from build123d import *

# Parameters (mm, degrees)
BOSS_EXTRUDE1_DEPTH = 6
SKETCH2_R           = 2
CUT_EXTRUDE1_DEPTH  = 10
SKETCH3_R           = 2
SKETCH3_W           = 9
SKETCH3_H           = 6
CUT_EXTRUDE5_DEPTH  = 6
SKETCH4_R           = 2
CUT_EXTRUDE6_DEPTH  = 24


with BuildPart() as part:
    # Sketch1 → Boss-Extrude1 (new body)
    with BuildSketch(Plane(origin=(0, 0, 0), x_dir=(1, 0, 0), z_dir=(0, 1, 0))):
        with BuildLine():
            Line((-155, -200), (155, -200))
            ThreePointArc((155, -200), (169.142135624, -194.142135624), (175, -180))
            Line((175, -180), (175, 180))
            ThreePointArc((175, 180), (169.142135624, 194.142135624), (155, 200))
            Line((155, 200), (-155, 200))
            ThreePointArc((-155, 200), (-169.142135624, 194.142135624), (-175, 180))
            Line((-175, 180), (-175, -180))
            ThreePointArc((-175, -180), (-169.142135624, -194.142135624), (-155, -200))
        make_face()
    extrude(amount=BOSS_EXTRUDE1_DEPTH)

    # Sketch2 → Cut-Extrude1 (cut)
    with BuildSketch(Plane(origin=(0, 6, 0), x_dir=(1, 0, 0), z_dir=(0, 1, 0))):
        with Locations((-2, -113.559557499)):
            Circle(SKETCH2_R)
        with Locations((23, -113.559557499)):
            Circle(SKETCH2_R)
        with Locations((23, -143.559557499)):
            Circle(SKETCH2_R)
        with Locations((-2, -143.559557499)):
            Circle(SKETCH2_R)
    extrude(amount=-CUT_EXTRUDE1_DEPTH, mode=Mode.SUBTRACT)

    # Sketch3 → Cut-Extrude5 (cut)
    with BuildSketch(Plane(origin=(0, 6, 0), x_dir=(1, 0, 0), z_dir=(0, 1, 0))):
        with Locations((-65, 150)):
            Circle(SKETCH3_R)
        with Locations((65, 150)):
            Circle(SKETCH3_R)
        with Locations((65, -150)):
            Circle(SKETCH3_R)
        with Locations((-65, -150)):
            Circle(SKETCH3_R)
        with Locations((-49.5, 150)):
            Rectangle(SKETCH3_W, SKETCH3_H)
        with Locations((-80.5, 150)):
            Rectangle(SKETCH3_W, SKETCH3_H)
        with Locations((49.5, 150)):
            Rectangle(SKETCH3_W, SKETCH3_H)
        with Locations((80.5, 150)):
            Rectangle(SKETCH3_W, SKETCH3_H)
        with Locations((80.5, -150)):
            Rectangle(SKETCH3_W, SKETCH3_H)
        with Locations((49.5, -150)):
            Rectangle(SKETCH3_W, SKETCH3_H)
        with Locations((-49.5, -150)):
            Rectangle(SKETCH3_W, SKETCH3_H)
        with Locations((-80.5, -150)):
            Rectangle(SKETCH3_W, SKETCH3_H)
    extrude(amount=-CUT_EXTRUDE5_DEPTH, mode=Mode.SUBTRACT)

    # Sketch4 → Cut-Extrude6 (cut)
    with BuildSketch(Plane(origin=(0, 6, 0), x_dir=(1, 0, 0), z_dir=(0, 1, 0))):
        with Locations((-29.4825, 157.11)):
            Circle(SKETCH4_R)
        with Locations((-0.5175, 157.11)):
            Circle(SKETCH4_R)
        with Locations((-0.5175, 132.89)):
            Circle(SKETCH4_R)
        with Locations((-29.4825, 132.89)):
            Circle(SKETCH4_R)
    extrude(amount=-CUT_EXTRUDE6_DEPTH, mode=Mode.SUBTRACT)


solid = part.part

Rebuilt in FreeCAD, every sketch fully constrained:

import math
import FreeCAD as App
import Part
import Sketcher
from FreeCAD import Vector


def add_polygon(sketch, points):
    """Adds a closed chain of lines whose ends are joined by coincident constraints."""
    first, n = sketch.GeometryCount, len(points)
    for a, b in zip(points, points[1:] + points[:1]):
        sketch.addGeometry(Part.LineSegment(App.Vector(*a, 0), App.Vector(*b, 0)), False)
    for i in range(n):
        sketch.addConstraint(Sketcher.Constraint("Coincident", first + i, 2, first + (i + 1) % n, 1))

doc = App.newDocument("Part")
body = doc.addObject("PartDesign::Body", "Body")

# Sketch on XZ plane
sketch1 = body.newObject("Sketcher::SketchObject", "Sketch")
sketch1.AttachmentSupport = (doc.getObject("XZ_Plane"), [""])
sketch1.MapMode = "FlatFace"
sketch1.addGeometry([
    Part.LineSegment(Vector(-155, 200, 0), Vector(155, 200, 0)),  # 0
    Part.ArcOfCircle(Part.Circle(Vector(155, 180, 0), Vector(0, 0, 1), 20), math.radians(0), math.radians(90)),  # 1
    Part.LineSegment(Vector(175, 180, 0), Vector(175, -180, 0)),  # 2
    Part.ArcOfCircle(Part.Circle(Vector(155, -180, 0), Vector(0, 0, 1), 20), math.radians(-90), math.radians(0)),  # 3
    Part.LineSegment(Vector(155, -200, 0), Vector(-155, -200, 0)),  # 4
    Part.ArcOfCircle(Part.Circle(Vector(-155, -180, 0), Vector(0, 0, 1), 20), math.radians(180), math.radians(270)),  # 5
    Part.LineSegment(Vector(-175, -180, 0), Vector(-175, 180, 0)),  # 6
    Part.ArcOfCircle(Part.Circle(Vector(-155, 180, 0), Vector(0, 0, 1), 20), math.radians(90), math.radians(180)),  # 7
], False)
sketch1.addConstraint([
    Sketcher.Constraint("Tangent", 0, 2, 1, 2),
    Sketcher.Constraint("Tangent", 1, 1, 2, 1),
    Sketcher.Constraint("Tangent", 2, 2, 3, 2),
    Sketcher.Constraint("Tangent", 3, 1, 4, 1),
    Sketcher.Constraint("Tangent", 4, 2, 5, 2),
    Sketcher.Constraint("Tangent", 5, 1, 6, 1),
    Sketcher.Constraint("Tangent", 6, 2, 7, 2),
    Sketcher.Constraint("Tangent", 7, 1, 0, 1),
    Sketcher.Constraint("Horizontal", 0),
    Sketcher.Constraint("Vertical", 2),
    Sketcher.Constraint("Horizontal", 4),
    Sketcher.Constraint("Vertical", 6),
    Sketcher.Constraint("Equal", 1, 3),
    Sketcher.Constraint("Equal", 3, 5),
    Sketcher.Constraint("Equal", 5, 7),
    Sketcher.Constraint("Symmetric", 1, 3, 5, 3, -1, 1),
    Sketcher.Constraint("Radius", 1, 20.0),
    Sketcher.Constraint("DistanceX", 0, 1, 0, 2, 310.0),
    Sketcher.Constraint("DistanceY", 2, 2, 2, 1, 360.0),
])
pad1 = body.newObject("PartDesign::Pad", "Pad")
pad1.Profile = sketch1
pad1.Length = 6
pad1.Reversed = True

# Sketch on XZ plane
sketch2 = body.newObject("Sketcher::SketchObject", "Sketch001")
sketch2.AttachmentSupport = (doc.getObject("XZ_Plane"), [""])
sketch2.MapMode = "FlatFace"
sketch2.AttachmentOffset = App.Placement(Vector(0, 0, -6), App.Rotation())
sketch2.addGeometry([
    Part.Circle(Vector(-2, 113.6, 0), Vector(0, 0, 1), 2),
    Part.Circle(Vector(23, 113.6, 0), Vector(0, 0, 1), 2),
    Part.Circle(Vector(23, 143.6, 0), Vector(0, 0, 1), 2),
    Part.Circle(Vector(-2, 143.6, 0), Vector(0, 0, 1), 2),
], False)
sketch2.addConstraint([
    Sketcher.Constraint("Equal", 0, 1),
    Sketcher.Constraint("Equal", 1, 2),
    Sketcher.Constraint("Equal", 2, 3),
    Sketcher.Constraint("Horizontal", 0, 3, 1, 3),
    Sketcher.Constraint("Horizontal", 2, 3, 3, 3),
    Sketcher.Constraint("Vertical", 1, 3, 2, 3),
    Sketcher.Constraint("Vertical", 0, 3, 3, 3),
    Sketcher.Constraint("Diameter", 0, 4.0),
    Sketcher.Constraint("DistanceX", 0, 3, -1, 1, 2.0),
    Sketcher.Constraint("DistanceX", -1, 1, 1, 3, 23.0),
    Sketcher.Constraint("DistanceY", 1, 3, 2, 3, 30.0),
    Sketcher.Constraint("DistanceY", -1, 1, 0, 3, 113.559557),
])
pocket1 = body.newObject("PartDesign::Pocket", "Pocket")
pocket1.Profile = sketch2
pocket1.Length = 10
pocket1.Reversed = True

# Sketch on XZ plane
sketch3 = body.newObject("Sketcher::SketchObject", "Sketch002")
sketch3.AttachmentSupport = (doc.getObject("XZ_Plane"), [""])
sketch3.MapMode = "FlatFace"
sketch3.AttachmentOffset = App.Placement(Vector(0, 0, -6), App.Rotation())
sketch3.addGeometry(Part.Circle(Vector(-65, -150, 0), Vector(0, 0, 1), 2), False)  # 0
sketch3.addGeometry(Part.Circle(Vector(65, -150, 0), Vector(0, 0, 1), 2), False)  # 1
sketch3.addGeometry(Part.Circle(Vector(65, 150, 0), Vector(0, 0, 1), 2), False)  # 2
sketch3.addGeometry(Part.Circle(Vector(-65, 150, 0), Vector(0, 0, 1), 2), False)  # 3
add_polygon(sketch3, [(-54, -153), (-54, -147), (-45, -147), (-45, -153)])  # lines 4-7
add_polygon(sketch3, [(-85, -153), (-85, -147), (-76, -147), (-76, -153)])  # lines 8-11
add_polygon(sketch3, [(45, -153), (45, -147), (54, -147), (54, -153)])  # lines 12-15
add_polygon(sketch3, [(76, -153), (76, -147), (85, -147), (85, -153)])  # lines 16-19
add_polygon(sketch3, [(76, 147), (76, 153), (85, 153), (85, 147)])  # lines 20-23
add_polygon(sketch3, [(45, 147), (45, 153), (54, 153), (54, 147)])  # lines 24-27
add_polygon(sketch3, [(-54, 147), (-54, 153), (-45, 153), (-45, 147)])  # lines 28-31
add_polygon(sketch3, [(-85, 147), (-85, 153), (-76, 153), (-76, 147)])  # lines 32-35
sketch3.addConstraint([
    Sketcher.Constraint("Vertical", 4),
    Sketcher.Constraint("Horizontal", 5),
    Sketcher.Constraint("Vertical", 6),
    Sketcher.Constraint("Horizontal", 7),
    Sketcher.Constraint("Vertical", 8),
    Sketcher.Constraint("Horizontal", 9),
    Sketcher.Constraint("Vertical", 10),
    Sketcher.Constraint("Horizontal", 11),
    Sketcher.Constraint("Vertical", 12),
    Sketcher.Constraint("Horizontal", 13),
    Sketcher.Constraint("Vertical", 14),
    Sketcher.Constraint("Horizontal", 15),
    Sketcher.Constraint("Vertical", 16),
    Sketcher.Constraint("Horizontal", 17),
    Sketcher.Constraint("Vertical", 18),
    Sketcher.Constraint("Horizontal", 19),
    Sketcher.Constraint("Vertical", 20),
    Sketcher.Constraint("Horizontal", 21),
    Sketcher.Constraint("Vertical", 22),
    Sketcher.Constraint("Horizontal", 23),
    Sketcher.Constraint("Vertical", 24),
    Sketcher.Constraint("Horizontal", 25),
    Sketcher.Constraint("Vertical", 26),
    Sketcher.Constraint("Horizontal", 27),
    Sketcher.Constraint("Vertical", 28),
    Sketcher.Constraint("Horizontal", 29),
    Sketcher.Constraint("Vertical", 30),
    Sketcher.Constraint("Horizontal", 31),
    Sketcher.Constraint("Vertical", 32),
    Sketcher.Constraint("Horizontal", 33),
    Sketcher.Constraint("Vertical", 34),
    Sketcher.Constraint("Horizontal", 35),
    Sketcher.Constraint("Equal", 0, 1),
    Sketcher.Constraint("Equal", 1, 2),
    Sketcher.Constraint("Equal", 2, 3),
    Sketcher.Constraint("Symmetric", 0, 3, 2, 3, -1, 1),
    Sketcher.Constraint("Symmetric", 1, 3, 3, 3, -1, 1),
    Sketcher.Constraint("Symmetric", 10, 2, 20, 2, -1, 1),
    Sketcher.Constraint("Symmetric", 8, 2, 22, 2, -1, 1),
    Sketcher.Constraint("Symmetric", 6, 2, 24, 2, -1, 1),
    Sketcher.Constraint("Symmetric", 4, 2, 26, 2, -1, 1),
    Sketcher.Constraint("Symmetric", 14, 2, 28, 2, -1, 1),
    Sketcher.Constraint("Symmetric", 12, 2, 30, 2, -1, 1),
    Sketcher.Constraint("Symmetric", 18, 2, 32, 2, -1, 1),
    Sketcher.Constraint("Symmetric", 16, 2, 34, 2, -1, 1),
    Sketcher.Constraint("Symmetric", 0, 3, 1, 3, -2),
    Sketcher.Constraint("Symmetric", 5, 2, 12, 2, -2),
    Sketcher.Constraint("Symmetric", 7, 2, 14, 2, -2),
    Sketcher.Constraint("Symmetric", 9, 2, 16, 2, -2),
    Sketcher.Constraint("Symmetric", 11, 2, 18, 2, -2),
    Sketcher.Constraint("Horizontal", 5, 2, 8, 2),
    Sketcher.Constraint("Horizontal", 7, 2, 10, 2),
    Sketcher.Constraint("Equal", 7, 9),
    Sketcher.Constraint("Diameter", 0, 4.0),
    Sketcher.Constraint("DistanceX", 5, 1, 5, 2, 9.0),
    Sketcher.Constraint("DistanceY", 4, 1, 4, 2, 6.0),
    Sketcher.Constraint("DistanceX", 0, 3, -1, 1, 65.0),
    Sketcher.Constraint("DistanceY", 0, 3, -1, 1, 150.0),
    Sketcher.Constraint("DistanceX", 4, 2, -1, 1, 54.0),
    Sketcher.Constraint("DistanceY", 4, 2, -1, 1, 147.0),
    Sketcher.Constraint("DistanceX", 8, 2, -1, 1, 85.0),
])
pocket2 = body.newObject("PartDesign::Pocket", "Pocket001")
pocket2.Profile = sketch3
pocket2.Length = 6
pocket2.Reversed = True

# Sketch on XZ plane
sketch4 = body.newObject("Sketcher::SketchObject", "Sketch003")
sketch4.AttachmentSupport = (doc.getObject("XZ_Plane"), [""])
sketch4.MapMode = "FlatFace"
sketch4.AttachmentOffset = App.Placement(Vector(0, 0, -6), App.Rotation())
sketch4.addGeometry([
    Part.Circle(Vector(-29.5, -157.1, 0), Vector(0, 0, 1), 2),
    Part.Circle(Vector(-0.5, -157.1, 0), Vector(0, 0, 1), 2),
    Part.Circle(Vector(-0.5, -132.9, 0), Vector(0, 0, 1), 2),
    Part.Circle(Vector(-29.5, -132.9, 0), Vector(0, 0, 1), 2),
], False)
sketch4.addConstraint([
    Sketcher.Constraint("Equal", 0, 1),
    Sketcher.Constraint("Equal", 1, 2),
    Sketcher.Constraint("Equal", 2, 3),
    Sketcher.Constraint("Horizontal", 0, 3, 1, 3),
    Sketcher.Constraint("Horizontal", 2, 3, 3, 3),
    Sketcher.Constraint("Vertical", 1, 3, 2, 3),
    Sketcher.Constraint("Vertical", 0, 3, 3, 3),
    Sketcher.Constraint("Diameter", 0, 4.0),
    Sketcher.Constraint("DistanceY", 0, 3, -1, 1, 157.11),
    Sketcher.Constraint("DistanceY", 2, 3, -1, 1, 132.89),
    Sketcher.Constraint("DistanceX", 0, 3, 1, 3, 28.965),
    Sketcher.Constraint("DistanceX", 0, 3, -1, 1, 29.4825),
])
pocket3 = body.newObject("PartDesign::Pocket", "Pocket002")
pocket3.Profile = sketch4
pocket3.Length = 24
pocket3.Reversed = True

doc.recompute()
